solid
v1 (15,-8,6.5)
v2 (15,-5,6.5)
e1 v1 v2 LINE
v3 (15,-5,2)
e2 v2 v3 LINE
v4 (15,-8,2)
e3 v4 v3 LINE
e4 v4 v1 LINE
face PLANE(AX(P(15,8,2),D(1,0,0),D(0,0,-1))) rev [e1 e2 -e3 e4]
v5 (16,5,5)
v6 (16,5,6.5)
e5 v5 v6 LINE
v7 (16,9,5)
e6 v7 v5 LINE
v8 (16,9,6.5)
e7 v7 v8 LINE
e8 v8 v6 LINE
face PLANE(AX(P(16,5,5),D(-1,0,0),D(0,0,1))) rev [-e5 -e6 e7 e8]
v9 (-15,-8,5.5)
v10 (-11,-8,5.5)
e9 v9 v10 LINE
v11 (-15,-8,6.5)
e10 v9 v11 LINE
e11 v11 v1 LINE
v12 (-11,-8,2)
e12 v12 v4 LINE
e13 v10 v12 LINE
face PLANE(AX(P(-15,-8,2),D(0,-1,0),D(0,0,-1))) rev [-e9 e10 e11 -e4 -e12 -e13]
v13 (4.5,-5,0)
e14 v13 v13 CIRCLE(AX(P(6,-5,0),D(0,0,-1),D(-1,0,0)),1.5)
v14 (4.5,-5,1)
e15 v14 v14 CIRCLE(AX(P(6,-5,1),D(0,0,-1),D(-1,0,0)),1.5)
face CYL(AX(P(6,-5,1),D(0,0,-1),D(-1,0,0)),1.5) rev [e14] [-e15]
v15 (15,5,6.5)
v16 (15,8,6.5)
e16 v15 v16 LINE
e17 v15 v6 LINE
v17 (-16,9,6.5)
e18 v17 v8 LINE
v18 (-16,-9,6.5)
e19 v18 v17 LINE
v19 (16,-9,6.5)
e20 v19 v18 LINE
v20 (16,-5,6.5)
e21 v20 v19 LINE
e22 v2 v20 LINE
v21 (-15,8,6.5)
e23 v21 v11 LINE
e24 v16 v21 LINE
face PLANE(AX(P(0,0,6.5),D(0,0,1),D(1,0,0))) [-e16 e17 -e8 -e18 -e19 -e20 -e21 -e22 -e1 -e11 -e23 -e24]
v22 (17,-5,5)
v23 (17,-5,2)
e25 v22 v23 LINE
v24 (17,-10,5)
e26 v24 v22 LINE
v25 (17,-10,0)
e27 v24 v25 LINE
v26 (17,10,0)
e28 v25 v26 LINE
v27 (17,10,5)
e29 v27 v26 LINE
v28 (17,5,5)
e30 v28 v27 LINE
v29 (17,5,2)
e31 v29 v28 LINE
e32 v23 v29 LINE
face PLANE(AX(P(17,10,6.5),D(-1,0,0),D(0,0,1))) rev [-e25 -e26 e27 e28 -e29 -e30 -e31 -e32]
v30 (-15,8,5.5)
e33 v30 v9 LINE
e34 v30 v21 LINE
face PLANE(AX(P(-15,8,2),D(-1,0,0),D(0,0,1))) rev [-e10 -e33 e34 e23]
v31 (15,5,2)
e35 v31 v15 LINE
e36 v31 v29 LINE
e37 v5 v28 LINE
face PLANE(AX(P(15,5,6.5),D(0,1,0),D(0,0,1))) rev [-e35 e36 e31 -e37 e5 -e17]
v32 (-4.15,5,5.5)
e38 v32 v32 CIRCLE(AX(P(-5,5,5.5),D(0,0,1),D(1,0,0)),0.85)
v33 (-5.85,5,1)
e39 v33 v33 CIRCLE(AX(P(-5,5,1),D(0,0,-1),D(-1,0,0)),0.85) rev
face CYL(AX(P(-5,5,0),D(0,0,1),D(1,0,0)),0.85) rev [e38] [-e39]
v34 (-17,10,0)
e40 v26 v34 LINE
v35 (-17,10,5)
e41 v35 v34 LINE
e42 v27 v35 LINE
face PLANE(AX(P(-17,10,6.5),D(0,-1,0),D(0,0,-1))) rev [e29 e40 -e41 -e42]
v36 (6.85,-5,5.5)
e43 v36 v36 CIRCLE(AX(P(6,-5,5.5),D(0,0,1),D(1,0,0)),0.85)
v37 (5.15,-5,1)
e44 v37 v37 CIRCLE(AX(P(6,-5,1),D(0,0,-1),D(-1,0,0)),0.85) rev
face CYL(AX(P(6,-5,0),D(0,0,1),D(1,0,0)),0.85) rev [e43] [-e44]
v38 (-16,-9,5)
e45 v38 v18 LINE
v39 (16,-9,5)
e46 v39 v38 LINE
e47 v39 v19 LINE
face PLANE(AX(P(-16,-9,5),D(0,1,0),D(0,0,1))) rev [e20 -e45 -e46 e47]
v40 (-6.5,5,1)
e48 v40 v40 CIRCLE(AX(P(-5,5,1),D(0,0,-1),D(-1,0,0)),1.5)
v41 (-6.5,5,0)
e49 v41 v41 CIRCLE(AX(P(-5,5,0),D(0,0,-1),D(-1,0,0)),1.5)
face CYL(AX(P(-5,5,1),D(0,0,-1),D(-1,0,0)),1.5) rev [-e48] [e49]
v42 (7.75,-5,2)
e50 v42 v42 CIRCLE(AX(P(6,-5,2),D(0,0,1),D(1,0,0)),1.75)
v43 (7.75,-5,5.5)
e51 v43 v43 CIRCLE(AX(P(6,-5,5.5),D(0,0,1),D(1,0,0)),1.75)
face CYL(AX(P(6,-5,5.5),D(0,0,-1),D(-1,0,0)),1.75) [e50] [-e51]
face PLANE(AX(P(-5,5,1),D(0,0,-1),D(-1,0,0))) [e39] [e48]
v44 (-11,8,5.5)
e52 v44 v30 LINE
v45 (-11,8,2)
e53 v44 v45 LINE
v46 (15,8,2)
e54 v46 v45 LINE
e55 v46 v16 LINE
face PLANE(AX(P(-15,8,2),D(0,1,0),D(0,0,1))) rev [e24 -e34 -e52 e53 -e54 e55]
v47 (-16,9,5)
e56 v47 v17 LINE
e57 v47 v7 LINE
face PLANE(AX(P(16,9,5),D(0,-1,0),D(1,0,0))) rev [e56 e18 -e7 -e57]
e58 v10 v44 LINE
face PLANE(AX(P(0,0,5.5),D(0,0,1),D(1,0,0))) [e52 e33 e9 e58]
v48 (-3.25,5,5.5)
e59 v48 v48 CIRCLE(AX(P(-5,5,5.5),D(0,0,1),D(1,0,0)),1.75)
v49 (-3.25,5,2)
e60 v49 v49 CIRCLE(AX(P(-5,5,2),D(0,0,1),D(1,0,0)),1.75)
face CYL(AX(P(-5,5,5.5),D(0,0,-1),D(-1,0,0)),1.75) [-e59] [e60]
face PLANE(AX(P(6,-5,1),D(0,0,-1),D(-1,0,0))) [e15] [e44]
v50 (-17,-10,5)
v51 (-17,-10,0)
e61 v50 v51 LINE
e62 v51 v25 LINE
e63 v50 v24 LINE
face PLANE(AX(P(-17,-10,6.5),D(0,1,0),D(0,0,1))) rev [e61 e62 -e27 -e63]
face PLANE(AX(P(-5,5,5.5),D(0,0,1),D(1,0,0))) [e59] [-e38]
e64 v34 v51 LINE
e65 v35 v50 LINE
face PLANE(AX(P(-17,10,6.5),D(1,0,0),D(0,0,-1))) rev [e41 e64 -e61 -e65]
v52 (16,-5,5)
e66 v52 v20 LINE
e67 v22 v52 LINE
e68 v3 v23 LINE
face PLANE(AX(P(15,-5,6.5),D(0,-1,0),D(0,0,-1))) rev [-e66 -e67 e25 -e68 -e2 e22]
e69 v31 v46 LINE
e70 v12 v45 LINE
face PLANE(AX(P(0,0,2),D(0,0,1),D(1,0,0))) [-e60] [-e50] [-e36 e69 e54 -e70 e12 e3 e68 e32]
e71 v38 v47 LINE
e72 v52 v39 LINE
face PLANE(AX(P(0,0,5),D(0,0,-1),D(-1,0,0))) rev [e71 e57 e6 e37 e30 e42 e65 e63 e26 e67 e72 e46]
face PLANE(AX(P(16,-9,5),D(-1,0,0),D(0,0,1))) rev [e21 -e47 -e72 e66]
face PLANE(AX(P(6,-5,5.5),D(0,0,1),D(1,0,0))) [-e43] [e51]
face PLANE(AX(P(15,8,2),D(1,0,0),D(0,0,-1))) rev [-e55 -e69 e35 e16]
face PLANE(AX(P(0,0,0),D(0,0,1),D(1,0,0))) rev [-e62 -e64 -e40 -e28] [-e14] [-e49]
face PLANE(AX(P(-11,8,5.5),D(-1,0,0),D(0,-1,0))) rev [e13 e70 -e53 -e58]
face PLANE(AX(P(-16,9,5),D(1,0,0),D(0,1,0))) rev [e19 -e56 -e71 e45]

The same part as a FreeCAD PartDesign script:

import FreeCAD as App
import Part
import Sketcher


def add_polygon(sketch, points):
    """Adds a closed chain of lines whose ends are joined by coincident constraints."""
    first, n = sketch.GeometryCount, len(points)
    for a, b in zip(points, points[1:] + points[:1]):
        sketch.addGeometry(Part.LineSegment(App.Vector(*a, 0), App.Vector(*b, 0)), False)
    for i in range(n):
        sketch.addConstraint(Sketcher.Constraint("Coincident", first + i, 2, first + (i + 1) % n, 1))

doc = App.newDocument("Part")
body = doc.addObject("PartDesign::Body", "Body")

sketch1 = body.newObject("Sketcher::SketchObject", "Sketch")
sketch1.AttachmentSupport = (doc.getObject("XY_Plane"), [""])
sketch1.MapMode = "FlatFace"
add_polygon(sketch1, [(-17, 10), (-17, -10), (17, -10), (17, 10)])
sketch1.addConstraint([
    Sketcher.Constraint("Vertical", 0),
    Sketcher.Constraint("Horizontal", 1),
    Sketcher.Constraint("Vertical", 2),
    Sketcher.Constraint("Horizontal", 3),
    Sketcher.Constraint("Symmetric", 0, 2, 2, 2, -1, 1),
    Sketcher.Constraint("DistanceX", 1, 1, 1, 2, 34.0),
    Sketcher.Constraint("DistanceY", 0, 2, 0, 1, 20.0),
])
pad1 = body.newObject("PartDesign::Pad", "Pad")
pad1.Profile = sketch1
pad1.Length = 6.5

sketch2 = body.newObject("Sketcher::SketchObject", "Sketch001")
sketch2.AttachmentSupport = (doc.getObject("XY_Plane"), [""])
sketch2.MapMode = "FlatFace"
sketch2.AttachmentOffset = App.Placement(App.Vector(0, 0, 6.5), App.Rotation())
add_polygon(sketch2, [(-15, 8), (-15, -8), (15, -8), (15, 8)])
sketch2.addConstraint([
    Sketcher.Constraint("Vertical", 0),
    Sketcher.Constraint("Horizontal", 1),
    Sketcher.Constraint("Vertical", 2),
    Sketcher.Constraint("Horizontal", 3),
    Sketcher.Constraint("Symmetric", 0, 2, 2, 2, -1, 1),
    Sketcher.Constraint("DistanceX", 1, 1, 1, 2, 30.0),
    Sketcher.Constraint("DistanceY", 0, 2, 0, 1, 16.0),
])
pocket1 = body.newObject("PartDesign::Pocket", "Pocket")
pocket1.Profile = sketch2
pocket1.Length = 4.5

sketch3 = body.newObject("Sketcher::SketchObject", "Sketch002")
sketch3.AttachmentSupport = (doc.getObject("YZ_Plane"), [""])
sketch3.MapMode = "FlatFace"
sketch3.AttachmentOffset = App.Placement(App.Vector(0, 0, 17), App.Rotation())
add_polygon(sketch3, [(5, 6.5), (-5, 6.5), (-5, 2), (5, 2)])
sketch3.addConstraint([
    Sketcher.Constraint("Horizontal", 0),
    Sketcher.Constraint("Vertical", 1),
    Sketcher.Constraint("Horizontal", 2),
    Sketcher.Constraint("Vertical", 3),
    Sketcher.Constraint("DistanceX", 0, 2, 0, 1, 10.0),
    Sketcher.Constraint("DistanceY", 1, 2, 1, 1, 4.5),
    Sketcher.Constraint("DistanceX", 0, 2, -1, 1, 5.0),
    Sketcher.Constraint("DistanceY", -1, 1, 1, 2, 2.0),
])
pocket2 = body.newObject("PartDesign::Pocket", "Pocket001")
pocket2.Profile = sketch3
pocket2.Length = 2

sketch4 = body.newObject("Sketcher::SketchObject", "Sketch003")
sketch4.AttachmentSupport = (doc.getObject("XY_Plane"), [""])
sketch4.MapMode = "FlatFace"
sketch4.AttachmentOffset = App.Placement(App.Vector(0, 0, 6.5), App.Rotation())
add_polygon(sketch4, [(16, 9), (16, 5), (17, 5), (17, 10), (-17, 10), (-17, -10), (17, -10), (17, -5), (16, -5), (16, -9), (-16, -9), (-16, 9)])
sketch4.addConstraint([
    Sketcher.Constraint("Vertical", 0),
    Sketcher.Constraint("Horizontal", 1),
    Sketcher.Constraint("Vertical", 2),
    Sketcher.Constraint("Horizontal", 3),
    Sketcher.Constraint("Vertical", 4),
    Sketcher.Constraint("Horizontal", 5),
    Sketcher.Constraint("Vertical", 6),
    Sketcher.Constraint("Horizontal", 7),
    Sketcher.Constraint("Vertical", 8),
    Sketcher.Constraint("Horizontal", 9),
    Sketcher.Constraint("Vertical", 10),
    Sketcher.Constraint("Horizontal", 11),
    Sketcher.Constraint("Symmetric", 2, 2, 4, 2, -1, 1),
    Sketcher.Constraint("Symmetric", 8, 2, 10, 2, -1, 1),
    Sketcher.Constraint("Symmetric", 1, 2, 6, 2, -1),
    Sketcher.Constraint("Vertical", 0, 2, 7, 2),
    Sketcher.Constraint("DistanceX", 1, 1, 1, 2, 1.0),
    Sketcher.Constraint("DistanceX", 3, 2, 3, 1, 34.0),
    Sketcher.Constraint("DistanceY", 0, 2, 0, 1, 4.0),
    Sketcher.Constraint("DistanceY", 2, 1, 2, 2, 5.0),
    Sketcher.Constraint("DistanceY", 4, 2, 4, 1, 20.0),
])
pocket3 = body.newObject("PartDesign::Pocket", "Pocket002")
pocket3.Profile = sketch4
pocket3.Length = 1.5

sketch5 = body.newObject("Sketcher::SketchObject", "Sketch004")
sketch5.AttachmentSupport = (doc.getObject("XY_Plane"), [""])
sketch5.MapMode = "FlatFace"
sketch5.AttachmentOffset = App.Placement(App.Vector(0, 0, 2), App.Rotation())
add_polygon(sketch5, [(-15, 8), (-15, -8), (-11, -8), (-11, 8)])
sketch5.addConstraint([
    Sketcher.Constraint("Vertical", 0),
    Sketcher.Constraint("Horizontal", 1),
    Sketcher.Constraint("Vertical", 2),
    Sketcher.Constraint("Horizontal", 3),
    Sketcher.Constraint("DistanceX", 1, 1, 1, 2, 4.0),
    Sketcher.Constraint("DistanceY", 0, 2, 0, 1, 16.0),
    Sketcher.Constraint("DistanceX", 0, 2, -1, 1, 15.0),
    Sketcher.Constraint("DistanceY", 0, 2, -1, 1, 8.0),
])
pad2 = body.newObject("PartDesign::Pad", "Pad001")
pad2.Profile = sketch5
pad2.Length = 3.5

sketch6 = body.newObject("Sketcher::SketchObject", "Sketch005")
sketch6.AttachmentSupport = (doc.getObject("XY_Plane"), [""])
sketch6.MapMode = "FlatFace"
sketch6.AttachmentOffset = App.Placement(App.Vector(0, 0, 2), App.Rotation())
sketch6.addGeometry([
    Part.Circle(App.Vector(-5, 5, 0), App.Vector(0, 0, 1), 1.8),
    Part.Circle(App.Vector(6, -5, 0), App.Vector(0, 0, 1), 1.8),
], False)
sketch6.addConstraint([
    Sketcher.Constraint("Equal", 0, 1),
    Sketcher.Constraint("Diameter", 0, 3.5),
    Sketcher.Constraint("DistanceX", 0, 3, -1, 1, 5.0),
    Sketcher.Constraint("DistanceY", -1, 1, 0, 3, 5.0),
    Sketcher.Constraint("DistanceX", -1, 1, 1, 3, 6.0),
    Sketcher.Constraint("DistanceY", 1, 3, -1, 1, 5.0),
])
pad3 = body.newObject("PartDesign::Pad", "Pad002")
pad3.Profile = sketch6
pad3.Length = 3.5

sketch7 = body.newObject("Sketcher::SketchObject", "Sketch006")
sketch7.AttachmentSupport = (doc.getObject("XY_Plane"), [""])
sketch7.MapMode = "FlatFace"
sketch7.AttachmentOffset = App.Placement(App.Vector(0, 0, 5.5), App.Rotation())
sketch7.addGeometry([
    Part.Circle(App.Vector(-5, 5, 0), App.Vector(0, 0, 1), 0.8),
    Part.Circle(App.Vector(6, -5, 0), App.Vector(0, 0, 1), 0.8),
], False)
sketch7.addConstraint([
    Sketcher.Constraint("Equal", 0, 1),
    Sketcher.Constraint("Diameter", 0, 1.7),
    Sketcher.Constraint("DistanceX", 0, 3, -1, 1, 5.0),
    Sketcher.Constraint("DistanceY", -1, 1, 0, 3, 5.0),
    Sketcher.Constraint("DistanceX", -1, 1, 1, 3, 6.0),
    Sketcher.Constraint("DistanceY", 1, 3, -1, 1, 5.0),
])
pocket4 = body.newObject("PartDesign::Pocket", "Pocket003")
pocket4.Profile = sketch7
pocket4.Type = "ThroughAll"

sketch8 = body.newObject("Sketcher::SketchObject", "Sketch007")
sketch8.AttachmentSupport = (doc.getObject("XY_Plane"), [""])
sketch8.MapMode = "FlatFace"
sketch8.addGeometry([
    Part.Circle(App.Vector(6, -5, 0), App.Vector(0, 0, 1), 1.5),
    Part.Circle(App.Vector(-5, 5, 0), App.Vector(0, 0, 1), 1.5),
], False)
sketch8.addConstraint([
    Sketcher.Constraint("Equal", 0, 1),
    Sketcher.Constraint("Diameter", 0, 3.0),
    Sketcher.Constraint("DistanceX", -1, 1, 0, 3, 6.0),
    Sketcher.Constraint("DistanceY", 0, 3, -1, 1, 5.0),
    Sketcher.Constraint("DistanceX", 1, 3, -1, 1, 5.0),
    Sketcher.Constraint("DistanceY", -1, 1, 1, 3, 5.0),
])
pocket5 = body.newObject("PartDesign::Pocket", "Pocket004")
pocket5.Profile = sketch8
pocket5.Length = 1
pocket5.Reversed = True

doc.recompute()
